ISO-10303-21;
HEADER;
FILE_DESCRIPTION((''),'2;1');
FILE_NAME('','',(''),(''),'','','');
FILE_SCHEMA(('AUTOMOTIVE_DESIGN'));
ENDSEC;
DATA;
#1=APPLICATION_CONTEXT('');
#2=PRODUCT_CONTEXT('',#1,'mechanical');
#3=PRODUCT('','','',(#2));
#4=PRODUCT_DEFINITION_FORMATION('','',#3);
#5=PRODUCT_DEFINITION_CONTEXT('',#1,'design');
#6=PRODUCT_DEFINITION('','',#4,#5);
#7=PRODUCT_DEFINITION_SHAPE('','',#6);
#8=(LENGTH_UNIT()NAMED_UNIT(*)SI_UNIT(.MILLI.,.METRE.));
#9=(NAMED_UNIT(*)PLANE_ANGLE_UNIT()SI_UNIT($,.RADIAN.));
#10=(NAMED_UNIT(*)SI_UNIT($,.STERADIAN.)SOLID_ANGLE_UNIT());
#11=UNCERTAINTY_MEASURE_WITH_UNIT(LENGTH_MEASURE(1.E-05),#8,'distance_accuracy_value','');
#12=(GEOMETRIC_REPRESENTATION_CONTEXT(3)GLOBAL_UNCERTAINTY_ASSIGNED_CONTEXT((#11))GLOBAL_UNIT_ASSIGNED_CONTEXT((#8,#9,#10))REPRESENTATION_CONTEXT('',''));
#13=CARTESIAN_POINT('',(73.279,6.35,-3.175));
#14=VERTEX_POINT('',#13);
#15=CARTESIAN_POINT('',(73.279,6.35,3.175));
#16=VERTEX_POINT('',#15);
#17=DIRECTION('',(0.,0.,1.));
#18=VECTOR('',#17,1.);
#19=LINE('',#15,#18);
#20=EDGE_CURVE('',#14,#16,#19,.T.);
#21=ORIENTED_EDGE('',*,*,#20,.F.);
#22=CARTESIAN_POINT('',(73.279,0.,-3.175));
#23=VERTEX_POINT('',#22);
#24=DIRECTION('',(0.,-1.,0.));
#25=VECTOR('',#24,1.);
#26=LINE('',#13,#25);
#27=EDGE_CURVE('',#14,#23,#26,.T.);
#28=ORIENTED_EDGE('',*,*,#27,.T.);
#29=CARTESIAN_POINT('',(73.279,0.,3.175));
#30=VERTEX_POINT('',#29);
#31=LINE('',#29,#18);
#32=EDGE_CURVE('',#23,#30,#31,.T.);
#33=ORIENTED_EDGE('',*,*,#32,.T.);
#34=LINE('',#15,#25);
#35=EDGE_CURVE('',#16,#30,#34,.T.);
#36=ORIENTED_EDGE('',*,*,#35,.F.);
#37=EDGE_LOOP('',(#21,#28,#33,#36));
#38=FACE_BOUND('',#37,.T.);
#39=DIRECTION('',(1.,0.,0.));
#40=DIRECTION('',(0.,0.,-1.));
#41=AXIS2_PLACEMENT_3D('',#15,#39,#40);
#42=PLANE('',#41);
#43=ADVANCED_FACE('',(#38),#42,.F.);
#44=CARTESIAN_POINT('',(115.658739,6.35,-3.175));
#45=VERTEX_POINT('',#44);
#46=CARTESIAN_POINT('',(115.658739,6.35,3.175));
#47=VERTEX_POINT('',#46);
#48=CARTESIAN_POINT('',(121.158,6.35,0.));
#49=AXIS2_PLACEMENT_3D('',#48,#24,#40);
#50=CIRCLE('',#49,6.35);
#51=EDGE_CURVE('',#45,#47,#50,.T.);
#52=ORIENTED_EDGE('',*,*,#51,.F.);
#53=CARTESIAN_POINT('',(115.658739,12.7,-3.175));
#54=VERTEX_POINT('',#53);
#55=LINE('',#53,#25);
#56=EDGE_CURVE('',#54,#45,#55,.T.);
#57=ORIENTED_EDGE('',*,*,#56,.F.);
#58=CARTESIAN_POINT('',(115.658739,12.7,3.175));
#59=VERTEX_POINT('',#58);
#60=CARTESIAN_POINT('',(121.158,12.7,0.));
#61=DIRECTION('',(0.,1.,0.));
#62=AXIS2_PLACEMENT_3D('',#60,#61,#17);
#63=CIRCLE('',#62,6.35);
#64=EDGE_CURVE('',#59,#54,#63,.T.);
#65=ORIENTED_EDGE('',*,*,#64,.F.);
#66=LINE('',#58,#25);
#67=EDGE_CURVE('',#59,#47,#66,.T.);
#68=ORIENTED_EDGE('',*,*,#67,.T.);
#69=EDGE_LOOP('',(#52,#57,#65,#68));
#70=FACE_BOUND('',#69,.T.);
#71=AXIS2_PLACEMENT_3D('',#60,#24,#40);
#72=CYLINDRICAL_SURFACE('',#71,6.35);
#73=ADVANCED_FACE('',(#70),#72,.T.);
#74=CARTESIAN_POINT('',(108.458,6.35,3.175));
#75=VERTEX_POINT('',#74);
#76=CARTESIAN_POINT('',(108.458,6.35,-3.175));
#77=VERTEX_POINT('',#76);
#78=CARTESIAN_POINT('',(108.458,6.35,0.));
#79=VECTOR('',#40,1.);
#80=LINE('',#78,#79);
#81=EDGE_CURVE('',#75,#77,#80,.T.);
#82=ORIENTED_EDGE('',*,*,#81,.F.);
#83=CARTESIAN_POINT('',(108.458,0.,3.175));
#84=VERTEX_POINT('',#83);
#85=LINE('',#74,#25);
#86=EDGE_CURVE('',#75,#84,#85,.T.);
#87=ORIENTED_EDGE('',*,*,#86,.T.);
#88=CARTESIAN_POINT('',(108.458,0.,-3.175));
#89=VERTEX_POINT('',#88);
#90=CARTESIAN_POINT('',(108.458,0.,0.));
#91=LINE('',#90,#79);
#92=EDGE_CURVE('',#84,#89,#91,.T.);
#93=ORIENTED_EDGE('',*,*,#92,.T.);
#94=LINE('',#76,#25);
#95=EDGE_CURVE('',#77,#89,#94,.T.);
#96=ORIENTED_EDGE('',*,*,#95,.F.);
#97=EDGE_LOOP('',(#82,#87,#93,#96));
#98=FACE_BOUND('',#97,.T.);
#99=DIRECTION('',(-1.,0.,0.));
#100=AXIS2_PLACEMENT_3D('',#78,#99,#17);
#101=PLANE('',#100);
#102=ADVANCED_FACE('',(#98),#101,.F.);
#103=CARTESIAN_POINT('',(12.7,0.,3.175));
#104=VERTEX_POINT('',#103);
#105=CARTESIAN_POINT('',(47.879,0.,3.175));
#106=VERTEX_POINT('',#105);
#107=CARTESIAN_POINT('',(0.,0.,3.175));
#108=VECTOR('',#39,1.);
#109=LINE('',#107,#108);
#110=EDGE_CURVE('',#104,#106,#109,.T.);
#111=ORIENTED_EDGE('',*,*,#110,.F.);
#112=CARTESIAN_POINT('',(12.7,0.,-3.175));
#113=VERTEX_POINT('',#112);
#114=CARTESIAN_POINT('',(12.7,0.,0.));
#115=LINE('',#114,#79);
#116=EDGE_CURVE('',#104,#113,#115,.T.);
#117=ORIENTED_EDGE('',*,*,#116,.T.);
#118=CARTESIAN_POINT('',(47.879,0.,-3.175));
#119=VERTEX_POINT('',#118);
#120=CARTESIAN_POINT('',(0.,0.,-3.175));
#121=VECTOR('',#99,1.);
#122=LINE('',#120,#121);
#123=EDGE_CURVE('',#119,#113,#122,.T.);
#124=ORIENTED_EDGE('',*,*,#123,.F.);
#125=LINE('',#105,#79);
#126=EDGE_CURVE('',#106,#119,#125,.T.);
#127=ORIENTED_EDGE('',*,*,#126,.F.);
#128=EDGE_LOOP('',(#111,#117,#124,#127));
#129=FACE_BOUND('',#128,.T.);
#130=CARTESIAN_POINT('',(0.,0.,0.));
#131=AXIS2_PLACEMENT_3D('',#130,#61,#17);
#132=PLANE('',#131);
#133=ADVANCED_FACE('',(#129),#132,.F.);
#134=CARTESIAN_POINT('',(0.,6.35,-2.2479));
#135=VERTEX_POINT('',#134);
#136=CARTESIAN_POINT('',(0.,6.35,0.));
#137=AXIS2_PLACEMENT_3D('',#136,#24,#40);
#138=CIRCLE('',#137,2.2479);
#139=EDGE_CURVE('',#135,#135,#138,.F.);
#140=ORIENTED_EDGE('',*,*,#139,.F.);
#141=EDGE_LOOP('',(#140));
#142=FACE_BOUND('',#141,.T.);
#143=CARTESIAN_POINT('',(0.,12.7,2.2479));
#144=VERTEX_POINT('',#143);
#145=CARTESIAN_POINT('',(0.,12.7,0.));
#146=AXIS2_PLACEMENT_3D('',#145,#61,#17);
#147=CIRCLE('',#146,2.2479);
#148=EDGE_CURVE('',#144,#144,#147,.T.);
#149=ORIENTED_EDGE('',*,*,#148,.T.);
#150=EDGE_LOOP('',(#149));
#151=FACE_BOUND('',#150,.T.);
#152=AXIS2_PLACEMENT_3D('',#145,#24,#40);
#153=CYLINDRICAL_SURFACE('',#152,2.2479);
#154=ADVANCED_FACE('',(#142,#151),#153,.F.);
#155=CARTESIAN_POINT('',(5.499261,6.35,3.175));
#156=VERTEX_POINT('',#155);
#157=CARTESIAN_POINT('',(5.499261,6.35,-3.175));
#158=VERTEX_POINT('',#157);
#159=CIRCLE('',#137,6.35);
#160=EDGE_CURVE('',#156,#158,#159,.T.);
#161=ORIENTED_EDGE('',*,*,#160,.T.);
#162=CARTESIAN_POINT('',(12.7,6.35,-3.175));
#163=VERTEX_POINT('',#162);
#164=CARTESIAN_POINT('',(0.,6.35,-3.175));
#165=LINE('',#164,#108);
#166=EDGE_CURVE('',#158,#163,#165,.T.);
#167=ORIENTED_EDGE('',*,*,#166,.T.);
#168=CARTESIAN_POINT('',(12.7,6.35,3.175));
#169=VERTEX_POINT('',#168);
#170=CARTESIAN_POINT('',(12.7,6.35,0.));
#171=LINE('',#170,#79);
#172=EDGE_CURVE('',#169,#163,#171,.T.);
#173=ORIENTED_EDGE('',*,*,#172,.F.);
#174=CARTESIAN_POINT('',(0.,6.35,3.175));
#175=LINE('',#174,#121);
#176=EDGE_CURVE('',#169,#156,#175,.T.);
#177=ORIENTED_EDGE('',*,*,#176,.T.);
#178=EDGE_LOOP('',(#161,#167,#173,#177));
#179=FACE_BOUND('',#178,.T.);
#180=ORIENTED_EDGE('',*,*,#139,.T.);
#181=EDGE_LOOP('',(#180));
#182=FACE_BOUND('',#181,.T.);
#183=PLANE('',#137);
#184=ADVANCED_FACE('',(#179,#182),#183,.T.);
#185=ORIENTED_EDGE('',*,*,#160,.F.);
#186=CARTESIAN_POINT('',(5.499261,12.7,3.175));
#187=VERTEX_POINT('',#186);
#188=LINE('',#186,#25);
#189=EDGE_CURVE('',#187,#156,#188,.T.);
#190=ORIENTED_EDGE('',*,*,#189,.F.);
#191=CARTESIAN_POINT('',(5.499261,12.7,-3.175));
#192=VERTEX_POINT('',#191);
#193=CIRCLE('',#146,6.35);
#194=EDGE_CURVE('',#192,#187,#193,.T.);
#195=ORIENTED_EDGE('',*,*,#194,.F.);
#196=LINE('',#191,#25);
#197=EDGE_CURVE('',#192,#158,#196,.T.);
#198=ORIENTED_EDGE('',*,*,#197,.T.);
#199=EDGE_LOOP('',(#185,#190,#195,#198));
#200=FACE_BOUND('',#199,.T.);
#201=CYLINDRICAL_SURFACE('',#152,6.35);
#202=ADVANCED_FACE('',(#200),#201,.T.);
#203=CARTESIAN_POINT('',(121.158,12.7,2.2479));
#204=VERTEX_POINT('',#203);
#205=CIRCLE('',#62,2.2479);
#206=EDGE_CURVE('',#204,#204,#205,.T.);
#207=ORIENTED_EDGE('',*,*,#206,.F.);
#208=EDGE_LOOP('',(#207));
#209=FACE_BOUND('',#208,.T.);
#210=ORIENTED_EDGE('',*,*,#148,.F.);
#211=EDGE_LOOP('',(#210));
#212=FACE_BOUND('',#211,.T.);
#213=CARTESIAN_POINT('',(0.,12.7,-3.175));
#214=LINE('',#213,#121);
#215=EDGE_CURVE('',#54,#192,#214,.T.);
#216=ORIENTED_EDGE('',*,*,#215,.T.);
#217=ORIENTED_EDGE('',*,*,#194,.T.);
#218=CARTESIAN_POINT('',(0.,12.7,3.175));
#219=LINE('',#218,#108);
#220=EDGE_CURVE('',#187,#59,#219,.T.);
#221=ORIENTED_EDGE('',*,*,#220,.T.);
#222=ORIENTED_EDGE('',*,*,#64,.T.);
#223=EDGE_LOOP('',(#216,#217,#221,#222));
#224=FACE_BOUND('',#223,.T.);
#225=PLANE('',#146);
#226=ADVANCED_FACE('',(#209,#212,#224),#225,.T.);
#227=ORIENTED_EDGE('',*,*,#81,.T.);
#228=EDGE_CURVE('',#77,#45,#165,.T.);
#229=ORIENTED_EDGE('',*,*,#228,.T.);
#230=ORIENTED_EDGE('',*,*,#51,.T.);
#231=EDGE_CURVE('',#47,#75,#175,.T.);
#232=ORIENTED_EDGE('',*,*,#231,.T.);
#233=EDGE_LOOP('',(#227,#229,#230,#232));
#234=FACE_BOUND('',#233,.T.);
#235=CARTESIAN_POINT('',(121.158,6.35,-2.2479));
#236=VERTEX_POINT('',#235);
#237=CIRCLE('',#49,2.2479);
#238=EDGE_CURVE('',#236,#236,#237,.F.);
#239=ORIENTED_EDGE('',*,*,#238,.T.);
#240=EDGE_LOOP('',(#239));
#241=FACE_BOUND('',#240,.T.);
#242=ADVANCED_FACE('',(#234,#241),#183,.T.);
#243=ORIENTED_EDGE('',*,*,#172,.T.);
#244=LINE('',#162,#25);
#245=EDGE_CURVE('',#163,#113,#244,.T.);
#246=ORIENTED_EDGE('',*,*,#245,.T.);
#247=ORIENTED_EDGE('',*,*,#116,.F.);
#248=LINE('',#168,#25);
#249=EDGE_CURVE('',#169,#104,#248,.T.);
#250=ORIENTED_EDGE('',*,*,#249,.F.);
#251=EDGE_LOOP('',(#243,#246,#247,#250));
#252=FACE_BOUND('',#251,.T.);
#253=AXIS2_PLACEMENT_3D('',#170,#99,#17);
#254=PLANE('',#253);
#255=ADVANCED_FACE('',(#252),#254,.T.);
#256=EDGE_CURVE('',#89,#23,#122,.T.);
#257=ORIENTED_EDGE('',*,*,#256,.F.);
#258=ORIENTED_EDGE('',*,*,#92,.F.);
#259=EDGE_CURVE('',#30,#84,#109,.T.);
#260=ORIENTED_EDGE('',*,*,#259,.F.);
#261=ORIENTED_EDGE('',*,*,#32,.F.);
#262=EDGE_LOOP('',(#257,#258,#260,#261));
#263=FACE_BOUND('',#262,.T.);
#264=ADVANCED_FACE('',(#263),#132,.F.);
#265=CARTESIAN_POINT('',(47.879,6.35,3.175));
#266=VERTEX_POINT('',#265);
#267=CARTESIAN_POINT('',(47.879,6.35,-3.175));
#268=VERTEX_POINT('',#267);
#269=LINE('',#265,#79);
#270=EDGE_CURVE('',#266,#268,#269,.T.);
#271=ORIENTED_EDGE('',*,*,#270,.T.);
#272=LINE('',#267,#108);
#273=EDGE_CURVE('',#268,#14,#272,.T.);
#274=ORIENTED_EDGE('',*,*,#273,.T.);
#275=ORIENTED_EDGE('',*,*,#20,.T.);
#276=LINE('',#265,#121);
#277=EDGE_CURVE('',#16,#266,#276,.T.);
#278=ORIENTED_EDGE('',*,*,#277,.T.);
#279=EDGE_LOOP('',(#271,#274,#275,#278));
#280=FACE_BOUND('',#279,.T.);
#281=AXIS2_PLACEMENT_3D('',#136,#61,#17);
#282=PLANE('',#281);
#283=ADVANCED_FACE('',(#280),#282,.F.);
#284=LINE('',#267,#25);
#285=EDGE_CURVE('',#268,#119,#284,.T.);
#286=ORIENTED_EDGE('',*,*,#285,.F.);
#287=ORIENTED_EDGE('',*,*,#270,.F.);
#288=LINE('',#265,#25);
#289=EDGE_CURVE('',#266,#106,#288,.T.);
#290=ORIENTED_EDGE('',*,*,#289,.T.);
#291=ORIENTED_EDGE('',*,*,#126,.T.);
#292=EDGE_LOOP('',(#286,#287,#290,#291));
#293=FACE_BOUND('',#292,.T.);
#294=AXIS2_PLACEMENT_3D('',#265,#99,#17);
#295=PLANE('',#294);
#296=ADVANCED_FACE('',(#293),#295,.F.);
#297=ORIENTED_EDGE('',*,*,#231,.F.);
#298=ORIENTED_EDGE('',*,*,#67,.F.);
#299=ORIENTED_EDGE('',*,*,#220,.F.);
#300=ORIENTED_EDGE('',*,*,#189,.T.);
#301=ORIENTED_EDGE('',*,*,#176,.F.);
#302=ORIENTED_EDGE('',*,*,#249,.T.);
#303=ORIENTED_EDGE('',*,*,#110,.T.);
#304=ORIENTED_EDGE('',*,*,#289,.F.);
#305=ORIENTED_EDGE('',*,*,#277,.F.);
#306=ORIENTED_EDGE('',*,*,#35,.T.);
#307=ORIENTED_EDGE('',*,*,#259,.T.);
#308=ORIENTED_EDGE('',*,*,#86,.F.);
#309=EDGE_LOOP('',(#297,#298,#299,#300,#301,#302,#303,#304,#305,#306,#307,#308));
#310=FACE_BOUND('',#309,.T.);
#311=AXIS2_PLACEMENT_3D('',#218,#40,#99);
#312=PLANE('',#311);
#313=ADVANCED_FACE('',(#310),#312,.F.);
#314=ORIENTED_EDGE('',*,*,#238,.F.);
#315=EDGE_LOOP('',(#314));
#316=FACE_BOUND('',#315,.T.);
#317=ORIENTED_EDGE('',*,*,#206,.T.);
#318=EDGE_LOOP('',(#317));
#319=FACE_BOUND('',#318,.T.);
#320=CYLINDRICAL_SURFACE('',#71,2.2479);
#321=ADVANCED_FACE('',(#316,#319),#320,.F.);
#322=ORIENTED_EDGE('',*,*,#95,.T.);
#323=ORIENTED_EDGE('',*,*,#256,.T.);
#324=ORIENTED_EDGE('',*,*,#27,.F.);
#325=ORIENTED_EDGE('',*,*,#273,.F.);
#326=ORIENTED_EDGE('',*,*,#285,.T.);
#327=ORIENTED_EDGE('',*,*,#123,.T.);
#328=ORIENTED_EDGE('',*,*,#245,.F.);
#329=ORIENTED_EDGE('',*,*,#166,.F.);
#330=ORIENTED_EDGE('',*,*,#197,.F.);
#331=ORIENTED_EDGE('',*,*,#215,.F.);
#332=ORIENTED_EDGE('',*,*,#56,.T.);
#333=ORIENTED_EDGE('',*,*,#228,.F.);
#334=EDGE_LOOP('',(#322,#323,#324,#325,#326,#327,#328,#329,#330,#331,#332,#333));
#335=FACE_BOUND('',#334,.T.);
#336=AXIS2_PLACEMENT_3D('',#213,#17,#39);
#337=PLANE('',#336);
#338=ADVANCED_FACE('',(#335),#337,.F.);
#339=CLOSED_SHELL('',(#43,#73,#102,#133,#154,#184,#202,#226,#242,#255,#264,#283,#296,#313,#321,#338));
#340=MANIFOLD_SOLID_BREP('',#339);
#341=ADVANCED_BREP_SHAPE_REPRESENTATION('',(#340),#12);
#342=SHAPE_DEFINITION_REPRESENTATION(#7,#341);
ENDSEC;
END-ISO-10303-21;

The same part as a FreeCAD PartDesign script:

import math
import FreeCAD as App
import Part
import Sketcher

V = App.Vector
Q = App.Units.Quantity

doc = App.newDocument("Part")
body = doc.addObject("PartDesign::Body", "Body")

sketch1 = body.newObject("Sketcher::SketchObject", "Sketch")
sketch1.AttachmentSupport = (doc.getObject("XZ_Plane"), [""])
sketch1.MapMode = "FlatFace"
sketch1.addGeometry(Part.LineSegment(V(5.5, 3.2, 0), V(115.7, 3.2, 0)), False)
sketch1.addGeometry(Part.ArcOfCircle(Part.Circle(V(121.2, 0, 0), V(0, 0, 1), 6.3), math.radians(0), math.radians(150)), False)
sketch1.addGeometry(Part.ArcOfCircle(Part.Circle(V(121.2, 0, 0), V(0, 0, 1), 6.3), math.radians(-150), math.radians(0)), False)
sketch1.addGeometry(Part.LineSegment(V(115.7, -3.2, 0), V(5.5, -3.2, 0)), False)
sketch1.addGeometry(Part.ArcOfCircle(Part.Circle(V(0, 0, 0), V(0, 0, 1), 6.3), math.radians(30), math.radians(330)), False)
sketch1.addGeometry(Part.ArcOfCircle(Part.Circle(V(121.2, 0, 0), V(0, 0, 1), 2.2), math.radians(-180), math.radians(-90)), False)
sketch1.addGeometry(Part.ArcOfCircle(Part.Circle(V(121.2, 0, 0), V(0, 0, 1), 2.2), math.radians(-90), math.radians(0)), False)
sketch1.addGeometry(Part.ArcOfCircle(Part.Circle(V(121.2, 0, 0), V(0, 0, 1), 2.2), math.radians(0), math.radians(180)), False)
sketch1.addGeometry(Part.ArcOfCircle(Part.Circle(V(0, 0, 0), V(0, 0, 1), 2.2), math.radians(0), math.radians(90)), False)
sketch1.addGeometry(Part.ArcOfCircle(Part.Circle(V(0, 0, 0), V(0, 0, 1), 2.2), math.radians(90), math.radians(270)), False)
sketch1.addGeometry(Part.ArcOfCircle(Part.Circle(V(0, 0, 0), V(0, 0, 1), 2.2), math.radians(-90), math.radians(0)), False)
sketch1.addConstraint(Sketcher.Constraint("Coincident", 0, 2, 1, 2))
sketch1.addConstraint(Sketcher.Constraint("Tangent", 1, 1, 2, 2))
sketch1.addConstraint(Sketcher.Constraint("Coincident", 2, 1, 3, 1))
sketch1.addConstraint(Sketcher.Constraint("Coincident", 3, 2, 4, 2))
sketch1.addConstraint(Sketcher.Constraint("Coincident", 4, 1, 0, 1))
sketch1.addConstraint(Sketcher.Constraint("Tangent", 5, 2, 6, 1))
sketch1.addConstraint(Sketcher.Constraint("Tangent", 6, 2, 7, 1))
sketch1.addConstraint(Sketcher.Constraint("Tangent", 7, 2, 5, 1))
sketch1.addConstraint(Sketcher.Constraint("Tangent", 8, 2, 9, 1))
sketch1.addConstraint(Sketcher.Constraint("Tangent", 9, 2, 10, 1))
sketch1.addConstraint(Sketcher.Constraint("Tangent", 10, 2, 8, 1))
sketch1.addConstraint(Sketcher.Constraint("Horizontal", 0))
sketch1.addConstraint(Sketcher.Constraint("Horizontal", 3))
sketch1.addConstraint(Sketcher.Constraint("Coincident", 4, 3, -1, 1))
sketch1.addConstraint(Sketcher.Constraint("Coincident", 8, 3, -1, 1))
sketch1.addConstraint(Sketcher.Constraint("Coincident", 5, 3, 1, 3))
sketch1.addConstraint(Sketcher.Constraint("Equal", 1, 2))
sketch1.addConstraint(Sketcher.Constraint("Equal", 2, 4))
sketch1.addConstraint(Sketcher.Constraint("Equal", 7, 8))
sketch1.addConstraint(Sketcher.Constraint("Symmetric", 0, 2, 2, 1, -1))
sketch1.addConstraint(Sketcher.Constraint("PointOnObject", 1, 1, -1))
sketch1.addConstraint(Sketcher.Constraint("PointOnObject", 6, 2, -1))
sketch1.addConstraint(Sketcher.Constraint("PointOnObject", 7, 2, -1))
sketch1.addConstraint(Sketcher.Constraint("PointOnObject", 8, 2, -2))
sketch1.addConstraint(Sketcher.Constraint("PointOnObject", 9, 2, -2))
sketch1.addConstraint(Sketcher.Constraint("PointOnObject", 10, 2, -1))
sketch1.addConstraint(Sketcher.Constraint("Vertical", 7, 3, 5, 2))
sketch1.addConstraint(Sketcher.Constraint("Radius", 1, Q("0.25 in")))
sketch1.addConstraint(Sketcher.Constraint("Radius", 5, Q("0.0885 in")))
sketch1.addConstraint(Sketcher.Constraint("DistanceX", -1, 1, 1, 3, Q("4.77 in")))
sketch1.addConstraint(Sketcher.Constraint("DistanceY", 2, 1, 0, 2, Q("0.25 in")))
pad1 = body.newObject("PartDesign::Pad", "Pad")
pad1.Profile = sketch1
pad1.Length = Q("0.5 in")
pad1.Reversed = True

sketch2 = body.newObject("Sketcher::SketchObject", "Sketch001")
sketch2.AttachmentSupport = (doc.getObject("XZ_Plane"), [""])
sketch2.MapMode = "FlatFace"
sketch2.addGeometry(Part.LineSegment(V(12.7, -3.2, 0), V(12.7, 3.2, 0)), False)
sketch2.addGeometry(Part.LineSegment(V(12.7, 3.2, 0), V(5.5, 3.2, 0)), False)
sketch2.addGeometry(Part.ArcOfCircle(Part.Circle(V(0, 0, 0), V(0, 0, 1), 6.3), math.radians(30), math.radians(330)), False)
sketch2.addGeometry(Part.LineSegment(V(5.5, -3.2, 0), V(12.7, -3.2, 0)), False)
sketch2.addGeometry(Part.Circle(V(0, 0, 0), V(0, 0, 1), 2.2), False)
sketch2.addGeometry(Part.ArcOfCircle(Part.Circle(V(121.2, 0, 0), V(0, 0, 1), 6.3), math.radians(0), math.radians(150)), False)
sketch2.addGeometry(Part.LineSegment(V(115.7, 3.2, 0), V(108.5, 3.2, 0)), False)
sketch2.addGeometry(Part.LineSegment(V(108.5, 3.2, 0), V(108.5, -3.2, 0)), False)
sketch2.addGeometry(Part.LineSegment(V(108.5, -3.2, 0), V(115.7, -3.2, 0)), False)
sketch2.addGeometry(Part.ArcOfCircle(Part.Circle(V(121.2, 0, 0), V(0, 0, 1), 6.3), math.radians(-150), math.radians(0)), False)
sketch2.addGeometry(Part.Circle(V(121.2, 0, 0), V(0, 0, 1), 2.2), False)
sketch2.addConstraint(Sketcher.Constraint("Coincident", 0, 2, 1, 1))
sketch2.addConstraint(Sketcher.Constraint("Coincident", 1, 2, 2, 1))
sketch2.addConstraint(Sketcher.Constraint("Coincident", 2, 2, 3, 1))
sketch2.addConstraint(Sketcher.Constraint("Coincident", 3, 2, 0, 1))
sketch2.addConstraint(Sketcher.Constraint("Coincident", 5, 2, 6, 1))
sketch2.addConstraint(Sketcher.Constraint("Coincident", 6, 2, 7, 1))
sketch2.addConstraint(Sketcher.Constraint("Coincident", 7, 2, 8, 1))
sketch2.addConstraint(Sketcher.Constraint("Coincident", 8, 2, 9, 1))
sketch2.addConstraint(Sketcher.Constraint("Tangent", 9, 2, 5, 1))
sketch2.addConstraint(Sketcher.Constraint("Vertical", 0))
sketch2.addConstraint(Sketcher.Constraint("Horizontal", 1))
sketch2.addConstraint(Sketcher.Constraint("Horizontal", 3))
sketch2.addConstraint(Sketcher.Constraint("Horizontal", 6))
sketch2.addConstraint(Sketcher.Constraint("Vertical", 7))
sketch2.addConstraint(Sketcher.Constraint("Horizontal", 8))
sketch2.addConstraint(Sketcher.Constraint("Coincident", 2, 3, -1, 1))
sketch2.addConstraint(Sketcher.Constraint("Coincident", 4, 3, -1, 1))
sketch2.addConstraint(Sketcher.Constraint("Coincident", 10, 3, 5, 3))
sketch2.addConstraint(Sketcher.Constraint("Equal", 2, 5))
sketch2.addConstraint(Sketcher.Constraint("Equal", 5, 9))
sketch2.addConstraint(Sketcher.Constraint("Equal", 4, 10))
sketch2.addConstraint(Sketcher.Constraint("Symmetric", 5, 2, 8, 2, -1))
sketch2.addConstraint(Sketcher.Constraint("PointOnObject", 9, 2, -1))
sketch2.addConstraint(Sketcher.Constraint("Horizontal", 1, 2, 5, 2))
sketch2.addConstraint(Sketcher.Constraint("Horizontal", 3, 2, 7, 2))
sketch2.addConstraint(Sketcher.Constraint("Equal", 3, 6))
sketch2.addConstraint(Sketcher.Constraint("Radius", 2, Q("0.25 in")))
sketch2.addConstraint(Sketcher.Constraint("Diameter", 4, Q("0.177 in")))
sketch2.addConstraint(Sketcher.Constraint("DistanceY", 0, 1, 0, 2, Q("0.25 in")))
sketch2.addConstraint(Sketcher.Constraint("DistanceX", -1, 1, 0, 2, Q("0.5 in")))
sketch2.addConstraint(Sketcher.Constraint("DistanceX", -1, 1, 5, 3, Q("4.77 in")))
pocket1 = body.newObject("PartDesign::Pocket", "Pocket")
pocket1.Profile = sketch2
pocket1.Length = Q("0.25 in")

sketch3 = body.newObject("Sketcher::SketchObject", "Sketch002")
sketch3.AttachmentSupport = (doc.getObject("XZ_Plane"), [""])
sketch3.MapMode = "FlatFace"
sketch3.addGeometry(Part.LineSegment(V(48, 3, 0), V(48, -3, 0)), False)
sketch3.addGeometry(Part.LineSegment(V(48, -3, 0), V(73, -3, 0)), False)
sketch3.addGeometry(Part.LineSegment(V(73, -3, 0), V(73, 3, 0)), False)
sketch3.addGeometry(Part.LineSegment(V(73, 3, 0), V(48, 3, 0)), False)
sketch3.addConstraint(Sketcher.Constraint("Coincident", 0, 2, 1, 1))
sketch3.addConstraint(Sketcher.Constraint("Coincident", 1, 2, 2, 1))
sketch3.addConstraint(Sketcher.Constraint("Coincident", 2, 2, 3, 1))
sketch3.addConstraint(Sketcher.Constraint("Coincident", 3, 2, 0, 1))
sketch3.addConstraint(Sketcher.Constraint("Vertical", 0))
sketch3.addConstraint(Sketcher.Constraint("Horizontal", 1))
sketch3.addConstraint(Sketcher.Constraint("Vertical", 2))
sketch3.addConstraint(Sketcher.Constraint("Horizontal", 3))
sketch3.addConstraint(Sketcher.Constraint("DistanceX", 1, 1, 1, 2, Q("1 in")))
sketch3.addConstraint(Sketcher.Constraint("DistanceY", 0, 2, 0, 1, Q("0.25 in")))
sketch3.addConstraint(Sketcher.Constraint("DistanceX", -1, 1, 0, 2, Q("1.885 in")))
sketch3.addConstraint(Sketcher.Constraint("DistanceY", 0, 2, -1, 1, Q("0.125 in")))
pocket2 = body.newObject("PartDesign::Pocket", "Pocket001")
pocket2.Profile = sketch3
pocket2.Length = Q("0.25 in")

doc.recompute()
